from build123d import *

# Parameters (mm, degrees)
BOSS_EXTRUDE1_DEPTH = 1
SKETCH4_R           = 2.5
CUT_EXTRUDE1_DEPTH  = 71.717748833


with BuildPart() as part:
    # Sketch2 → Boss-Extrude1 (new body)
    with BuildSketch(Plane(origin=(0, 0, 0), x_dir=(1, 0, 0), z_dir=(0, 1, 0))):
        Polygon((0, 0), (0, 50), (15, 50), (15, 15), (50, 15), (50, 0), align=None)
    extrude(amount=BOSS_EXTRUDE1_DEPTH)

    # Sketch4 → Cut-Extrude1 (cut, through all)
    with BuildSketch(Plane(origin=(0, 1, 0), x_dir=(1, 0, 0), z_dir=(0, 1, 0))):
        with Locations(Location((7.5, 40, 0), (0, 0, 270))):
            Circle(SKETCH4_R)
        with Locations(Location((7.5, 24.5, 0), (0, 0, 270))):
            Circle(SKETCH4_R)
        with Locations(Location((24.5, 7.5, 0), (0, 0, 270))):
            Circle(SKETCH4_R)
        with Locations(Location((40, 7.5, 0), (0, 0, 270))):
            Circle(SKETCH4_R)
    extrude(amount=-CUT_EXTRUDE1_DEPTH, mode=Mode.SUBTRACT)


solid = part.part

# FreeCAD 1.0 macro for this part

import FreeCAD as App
import Part
import Sketcher
Q = App.Units.Quantity

doc = App.newDocument("Part")
params = doc.addObject("Spreadsheet::Sheet", "Params")
for row, (alias, value) in enumerate([
    ("sketch1_width", "50 mm"),
    ("sketch1_width2", "35 mm"),
    ("pad1_length", "1 mm"),
    ("sketch2_diameter", "5 mm"),
], start=1):
    params.set(f"A{row}", alias)
    params.set(f"B{row}", "=" + value)
    params.setAlias(f"B{row}", alias)

body = doc.addObject("PartDesign::Body", "Body")

sketch1 = body.newObject("Sketcher::SketchObject", "Sketch")
sketch1.AttachmentSupport = (doc.getObject("XZ_Plane"), [""])
sketch1.MapMode = "FlatFace"
sketch1.addGeometry(Part.LineSegment(App.Vector(0, -50, 0), App.Vector(0, 0, 0)), False)
sketch1.addGeometry(Part.LineSegment(App.Vector(0, 0, 0), App.Vector(50, 0, 0)), False)
sketch1.addGeometry(Part.LineSegment(App.Vector(50, 0, 0), App.Vector(50, -15, 0)), False)
sketch1.addGeometry(Part.LineSegment(App.Vector(50, -15, 0), App.Vector(15, -15, 0)), False)
sketch1.addGeometry(Part.LineSegment(App.Vector(15, -15, 0), App.Vector(15, -50, 0)), False)
sketch1.addGeometry(Part.LineSegment(App.Vector(15, -50, 0), App.Vector(0, -50, 0)), False)
sketch1.addConstraint(Sketcher.Constraint("Coincident", 0, 2, 1, 1))
sketch1.addConstraint(Sketcher.Constraint("Coincident", 1, 2, 2, 1))
sketch1.addConstraint(Sketcher.Constraint("Coincident", 2, 2, 3, 1))
sketch1.addConstraint(Sketcher.Constraint("Coincident", 3, 2, 4, 1))
sketch1.addConstraint(Sketcher.Constraint("Coincident", 4, 2, 5, 1))
sketch1.addConstraint(Sketcher.Constraint("Coincident", 5, 2, 0, 1))
sketch1.addConstraint(Sketcher.Constraint("Vertical", 0))
sketch1.addConstraint(Sketcher.Constraint("Horizontal", 1))
sketch1.addConstraint(Sketcher.Constraint("Vertical", 2))
sketch1.addConstraint(Sketcher.Constraint("Horizontal", 3))
sketch1.addConstraint(Sketcher.Constraint("Vertical", 4))
sketch1.addConstraint(Sketcher.Constraint("Horizontal", 5))
sketch1.addConstraint(Sketcher.Constraint("Coincident", 0, 2, -1, 1))
sketch1.addConstraint(Sketcher.Constraint("Equal", 1, 0))
sketch1.addConstraint(Sketcher.Constraint("Equal", 5, 2))
sketch1.addConstraint(Sketcher.Constraint("DistanceX", 1, 1, 1, 2, Q("50 mm")))
sketch1.addConstraint(Sketcher.Constraint("DistanceX", 3, 2, 3, 1, Q("35 mm")))
sketch1.setExpression("Constraints[15]", "Params.sketch1_width")
sketch1.setExpression("Constraints[16]", "Params.sketch1_width2")
pad1 = body.newObject("PartDesign::Pad", "Pad")
pad1.Profile = sketch1
pad1.setExpression("Length", "Params.pad1_length")
pad1.Reversed = True

sketch2 = body.newObject("Sketcher::SketchObject", "Sketch001")
sketch2.AttachmentSupport = (doc.getObject("XZ_Plane"), [""])
sketch2.MapMode = "FlatFace"
sketch2.AttachmentOffset = App.Placement(App.Vector(0, 0, -1), App.Rotation())
sketch2.addGeometry(Part.Circle(App.Vector(7.5, -40, 0), App.Vector(0, 0, 1), 2.5), False)
sketch2.addGeometry(Part.Circle(App.Vector(7.5, -24.5, 0), App.Vector(0, 0, 1), 2.5), False)
sketch2.addGeometry(Part.Circle(App.Vector(24.5, -7.5, 0), App.Vector(0, 0, 1), 2.5), False)
sketch2.addGeometry(Part.Circle(App.Vector(40, -7.5, 0), App.Vector(0, 0, 1), 2.5), False)
sketch2.addConstraint(Sketcher.Constraint("Equal", 0, 1))
sketch2.addConstraint(Sketcher.Constraint("Equal", 1, 2))
sketch2.addConstraint(Sketcher.Constraint("Equal", 2, 3))
sketch2.addConstraint(Sketcher.Constraint("Horizontal", 2, 3, 3, 3))
sketch2.addConstraint(Sketcher.Constraint("Vertical", 0, 3, 1, 3))
sketch2.addConstraint(Sketcher.Constraint("Diameter", 0, Q("5 mm")))
sketch2.addConstraint(Sketcher.Constraint("DistanceY", 0, 3, -1, 1, Q("40 mm")))
sketch2.addConstraint(Sketcher.Constraint("DistanceX", -1, 1, 3, 3, Q("40 mm")))
sketch2.addConstraint(Sketcher.Constraint("DistanceX", 1, 3, 2, 3, Q("17 mm")))
sketch2.addConstraint(Sketcher.Constraint("DistanceY", 1, 3, 2, 3, Q("17 mm")))
sketch2.addConstraint(Sketcher.Constraint("DistanceX", -1, 1, 0, 3, Q("7.5 mm")))
sketch2.addConstraint(Sketcher.Constraint("DistanceY", 1, 3, -1, 1, Q("24.5 mm")))
sketch2.setExpression("Constraints[5]", "Params.sketch2_diameter")
pocket1 = body.newObject("PartDesign::Pocket", "Pocket")
pocket1.Profile = sketch2
pocket1.Type = "ThroughAll"
pocket1.Reversed = True

doc.recompute()
